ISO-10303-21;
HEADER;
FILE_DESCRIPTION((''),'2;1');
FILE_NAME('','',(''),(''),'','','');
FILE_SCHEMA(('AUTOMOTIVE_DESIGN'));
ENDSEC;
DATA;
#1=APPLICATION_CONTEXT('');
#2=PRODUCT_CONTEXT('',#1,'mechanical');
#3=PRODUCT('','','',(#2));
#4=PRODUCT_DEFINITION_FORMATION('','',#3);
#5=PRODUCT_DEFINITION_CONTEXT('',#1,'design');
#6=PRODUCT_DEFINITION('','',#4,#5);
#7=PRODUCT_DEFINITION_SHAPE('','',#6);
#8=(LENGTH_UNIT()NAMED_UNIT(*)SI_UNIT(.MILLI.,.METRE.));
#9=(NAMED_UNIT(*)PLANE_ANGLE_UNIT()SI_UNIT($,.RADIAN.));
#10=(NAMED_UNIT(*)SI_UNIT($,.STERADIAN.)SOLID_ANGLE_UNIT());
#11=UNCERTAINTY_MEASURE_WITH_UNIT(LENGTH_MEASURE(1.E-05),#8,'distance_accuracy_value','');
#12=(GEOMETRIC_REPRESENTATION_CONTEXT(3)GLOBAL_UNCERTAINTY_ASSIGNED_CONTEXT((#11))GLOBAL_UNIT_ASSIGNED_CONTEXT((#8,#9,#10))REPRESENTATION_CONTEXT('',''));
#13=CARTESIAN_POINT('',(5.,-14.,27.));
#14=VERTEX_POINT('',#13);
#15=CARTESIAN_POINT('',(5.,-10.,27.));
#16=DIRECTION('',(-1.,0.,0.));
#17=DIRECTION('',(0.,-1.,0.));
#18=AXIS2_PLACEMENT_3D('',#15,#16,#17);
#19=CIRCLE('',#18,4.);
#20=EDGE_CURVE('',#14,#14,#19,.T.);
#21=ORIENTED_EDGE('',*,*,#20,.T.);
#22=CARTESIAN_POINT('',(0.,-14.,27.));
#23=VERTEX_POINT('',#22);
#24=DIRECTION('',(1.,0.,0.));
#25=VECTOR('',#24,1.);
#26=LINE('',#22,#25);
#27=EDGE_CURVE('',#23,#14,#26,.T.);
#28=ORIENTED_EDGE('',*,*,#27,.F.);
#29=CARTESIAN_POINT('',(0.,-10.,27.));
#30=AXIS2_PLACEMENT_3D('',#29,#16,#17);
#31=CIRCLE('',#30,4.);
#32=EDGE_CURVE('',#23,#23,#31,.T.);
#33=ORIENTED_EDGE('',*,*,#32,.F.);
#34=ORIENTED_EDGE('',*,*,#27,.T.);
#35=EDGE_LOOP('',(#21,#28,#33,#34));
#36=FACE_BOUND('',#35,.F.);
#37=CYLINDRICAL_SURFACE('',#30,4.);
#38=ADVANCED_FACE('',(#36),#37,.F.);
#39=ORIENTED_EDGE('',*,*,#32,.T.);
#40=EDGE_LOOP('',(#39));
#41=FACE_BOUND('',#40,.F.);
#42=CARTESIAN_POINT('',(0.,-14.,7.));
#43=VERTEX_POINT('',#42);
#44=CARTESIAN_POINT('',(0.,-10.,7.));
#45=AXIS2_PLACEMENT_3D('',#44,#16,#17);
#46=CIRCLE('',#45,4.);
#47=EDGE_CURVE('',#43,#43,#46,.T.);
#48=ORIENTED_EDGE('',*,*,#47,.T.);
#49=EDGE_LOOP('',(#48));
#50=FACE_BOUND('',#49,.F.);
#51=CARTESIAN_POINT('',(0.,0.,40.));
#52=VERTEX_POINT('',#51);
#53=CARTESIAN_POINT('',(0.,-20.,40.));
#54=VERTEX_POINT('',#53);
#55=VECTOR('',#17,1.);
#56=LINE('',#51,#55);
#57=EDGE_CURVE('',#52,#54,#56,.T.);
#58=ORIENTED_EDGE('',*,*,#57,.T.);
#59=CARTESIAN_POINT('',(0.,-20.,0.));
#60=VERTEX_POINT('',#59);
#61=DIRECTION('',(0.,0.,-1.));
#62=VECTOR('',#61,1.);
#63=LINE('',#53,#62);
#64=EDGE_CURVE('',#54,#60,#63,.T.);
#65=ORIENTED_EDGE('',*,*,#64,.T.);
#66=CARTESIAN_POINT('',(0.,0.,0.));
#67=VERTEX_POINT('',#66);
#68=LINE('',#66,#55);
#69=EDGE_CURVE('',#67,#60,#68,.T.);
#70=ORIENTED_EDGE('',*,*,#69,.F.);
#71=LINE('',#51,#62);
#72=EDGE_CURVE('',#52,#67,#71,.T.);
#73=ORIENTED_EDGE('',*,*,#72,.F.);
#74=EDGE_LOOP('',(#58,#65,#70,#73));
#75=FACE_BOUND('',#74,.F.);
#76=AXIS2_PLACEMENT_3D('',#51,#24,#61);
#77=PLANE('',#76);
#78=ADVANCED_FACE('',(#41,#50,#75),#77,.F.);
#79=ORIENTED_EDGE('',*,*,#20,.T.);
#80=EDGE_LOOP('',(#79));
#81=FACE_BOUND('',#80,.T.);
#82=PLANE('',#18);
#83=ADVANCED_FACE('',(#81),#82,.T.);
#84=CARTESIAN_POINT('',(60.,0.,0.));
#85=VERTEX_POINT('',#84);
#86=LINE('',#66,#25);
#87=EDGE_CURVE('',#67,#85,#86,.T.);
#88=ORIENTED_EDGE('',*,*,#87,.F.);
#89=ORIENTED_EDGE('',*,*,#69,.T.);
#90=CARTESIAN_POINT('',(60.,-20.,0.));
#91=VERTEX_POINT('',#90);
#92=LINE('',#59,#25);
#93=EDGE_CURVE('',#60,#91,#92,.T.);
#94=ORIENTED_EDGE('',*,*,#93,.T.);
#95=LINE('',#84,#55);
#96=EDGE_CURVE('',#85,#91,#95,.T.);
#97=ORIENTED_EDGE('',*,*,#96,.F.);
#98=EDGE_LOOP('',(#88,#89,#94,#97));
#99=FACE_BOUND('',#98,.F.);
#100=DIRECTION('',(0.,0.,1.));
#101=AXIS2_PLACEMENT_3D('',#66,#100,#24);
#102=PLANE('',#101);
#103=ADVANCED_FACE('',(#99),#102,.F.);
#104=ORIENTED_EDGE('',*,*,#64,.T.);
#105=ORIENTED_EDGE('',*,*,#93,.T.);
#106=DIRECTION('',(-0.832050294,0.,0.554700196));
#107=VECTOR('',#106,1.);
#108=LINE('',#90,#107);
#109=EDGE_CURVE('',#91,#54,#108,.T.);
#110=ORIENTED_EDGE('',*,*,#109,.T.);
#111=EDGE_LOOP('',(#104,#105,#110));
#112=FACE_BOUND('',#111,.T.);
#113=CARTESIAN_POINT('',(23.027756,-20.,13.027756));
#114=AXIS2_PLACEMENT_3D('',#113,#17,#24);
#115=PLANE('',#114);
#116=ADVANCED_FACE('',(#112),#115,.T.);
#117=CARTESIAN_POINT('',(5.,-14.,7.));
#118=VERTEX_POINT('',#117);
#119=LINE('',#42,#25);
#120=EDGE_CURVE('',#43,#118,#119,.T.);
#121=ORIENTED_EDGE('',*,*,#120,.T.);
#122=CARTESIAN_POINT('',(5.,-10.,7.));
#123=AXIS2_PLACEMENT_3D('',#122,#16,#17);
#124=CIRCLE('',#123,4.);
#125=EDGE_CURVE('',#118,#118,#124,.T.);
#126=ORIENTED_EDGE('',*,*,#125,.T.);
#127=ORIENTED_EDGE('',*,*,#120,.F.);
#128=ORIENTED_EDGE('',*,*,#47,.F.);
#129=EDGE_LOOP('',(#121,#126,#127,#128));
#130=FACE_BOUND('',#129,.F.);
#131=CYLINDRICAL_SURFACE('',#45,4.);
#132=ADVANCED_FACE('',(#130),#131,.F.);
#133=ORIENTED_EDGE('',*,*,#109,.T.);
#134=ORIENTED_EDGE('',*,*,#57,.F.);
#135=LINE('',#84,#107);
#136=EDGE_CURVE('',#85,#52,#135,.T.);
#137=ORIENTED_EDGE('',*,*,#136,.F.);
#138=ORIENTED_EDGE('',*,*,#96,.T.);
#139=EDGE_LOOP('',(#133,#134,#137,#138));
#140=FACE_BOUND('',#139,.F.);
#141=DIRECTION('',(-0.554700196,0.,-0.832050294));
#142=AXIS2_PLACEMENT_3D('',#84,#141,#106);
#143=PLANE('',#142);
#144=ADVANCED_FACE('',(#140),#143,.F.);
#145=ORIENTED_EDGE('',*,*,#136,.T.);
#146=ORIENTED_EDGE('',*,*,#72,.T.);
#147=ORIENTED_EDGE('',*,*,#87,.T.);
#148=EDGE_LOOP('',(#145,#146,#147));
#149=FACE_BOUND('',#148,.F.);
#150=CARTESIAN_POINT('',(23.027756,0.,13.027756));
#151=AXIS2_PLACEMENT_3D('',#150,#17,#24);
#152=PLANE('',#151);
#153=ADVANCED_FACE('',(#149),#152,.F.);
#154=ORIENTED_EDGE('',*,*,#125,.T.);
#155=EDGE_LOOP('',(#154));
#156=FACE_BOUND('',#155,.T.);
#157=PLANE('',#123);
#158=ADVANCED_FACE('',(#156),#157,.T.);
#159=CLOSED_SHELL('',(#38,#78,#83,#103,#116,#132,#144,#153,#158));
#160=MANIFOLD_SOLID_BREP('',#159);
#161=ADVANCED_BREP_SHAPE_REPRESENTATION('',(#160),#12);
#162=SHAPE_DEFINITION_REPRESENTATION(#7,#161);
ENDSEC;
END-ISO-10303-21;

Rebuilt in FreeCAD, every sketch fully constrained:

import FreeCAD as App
import Part
import Sketcher
from FreeCAD import Vector


def add_polygon(sketch, points):
    """Adds a closed chain of lines whose ends are joined by coincident constraints."""
    first, n = sketch.GeometryCount, len(points)
    for a, b in zip(points, points[1:] + points[:1]):
        sketch.addGeometry(Part.LineSegment(App.Vector(*a, 0), App.Vector(*b, 0)), False)
    for i in range(n):
        sketch.addConstraint(Sketcher.Constraint("Coincident", first + i, 2, first + (i + 1) % n, 1))

doc = App.newDocument("Part")
body = doc.addObject("PartDesign::Body", "Body")

# Sketch on XZ plane
sketch1 = body.newObject("Sketcher::SketchObject", "Sketch")
sketch1.AttachmentSupport = (doc.getObject("XZ_Plane"), [""])
sketch1.MapMode = "FlatFace"
add_polygon(sketch1, [(0, 40), (0, 0), (60, 0)])  # lines 0-2
sketch1.addConstraint([
    Sketcher.Constraint("Vertical", 0),
    Sketcher.Constraint("Horizontal", 1),
    Sketcher.Constraint("Coincident", 0, 2, -1, 1),
    Sketcher.Constraint("DistanceX", 1, 1, 1, 2, 60.0),
    Sketcher.Constraint("DistanceY", 0, 2, 0, 1, 40.0),
])
pad1 = body.newObject("PartDesign::Pad", "Pad")
pad1.Profile = sketch1
pad1.Length = 20

# Sketch on YZ plane
sketch2 = body.newObject("Sketcher::SketchObject", "Sketch001")
sketch2.AttachmentSupport = (doc.getObject("YZ_Plane"), [""])
sketch2.MapMode = "FlatFace"
sketch2.addGeometry([
    Part.Circle(Vector(-10, 7, 0), Vector(0, 0, 1), 4),
    Part.Circle(Vector(-10, 27, 0), Vector(0, 0, 1), 4),
], False)
sketch2.addConstraint([
    Sketcher.Constraint("Equal", 0, 1),
    Sketcher.Constraint("Vertical", 0, 3, 1, 3),
    Sketcher.Constraint("Diameter", 0, 8.0),
    Sketcher.Constraint("DistanceX", 0, 3, -1, 1, 10.0),
    Sketcher.Constraint("DistanceY", -1, 1, 0, 3, 7.0),
    Sketcher.Constraint("DistanceY", -1, 1, 1, 3, 27.0),
])
pocket1 = body.newObject("PartDesign::Pocket", "Pocket")
pocket1.Profile = sketch2
pocket1.Length = 5
pocket1.Reversed = True

doc.recompute()
